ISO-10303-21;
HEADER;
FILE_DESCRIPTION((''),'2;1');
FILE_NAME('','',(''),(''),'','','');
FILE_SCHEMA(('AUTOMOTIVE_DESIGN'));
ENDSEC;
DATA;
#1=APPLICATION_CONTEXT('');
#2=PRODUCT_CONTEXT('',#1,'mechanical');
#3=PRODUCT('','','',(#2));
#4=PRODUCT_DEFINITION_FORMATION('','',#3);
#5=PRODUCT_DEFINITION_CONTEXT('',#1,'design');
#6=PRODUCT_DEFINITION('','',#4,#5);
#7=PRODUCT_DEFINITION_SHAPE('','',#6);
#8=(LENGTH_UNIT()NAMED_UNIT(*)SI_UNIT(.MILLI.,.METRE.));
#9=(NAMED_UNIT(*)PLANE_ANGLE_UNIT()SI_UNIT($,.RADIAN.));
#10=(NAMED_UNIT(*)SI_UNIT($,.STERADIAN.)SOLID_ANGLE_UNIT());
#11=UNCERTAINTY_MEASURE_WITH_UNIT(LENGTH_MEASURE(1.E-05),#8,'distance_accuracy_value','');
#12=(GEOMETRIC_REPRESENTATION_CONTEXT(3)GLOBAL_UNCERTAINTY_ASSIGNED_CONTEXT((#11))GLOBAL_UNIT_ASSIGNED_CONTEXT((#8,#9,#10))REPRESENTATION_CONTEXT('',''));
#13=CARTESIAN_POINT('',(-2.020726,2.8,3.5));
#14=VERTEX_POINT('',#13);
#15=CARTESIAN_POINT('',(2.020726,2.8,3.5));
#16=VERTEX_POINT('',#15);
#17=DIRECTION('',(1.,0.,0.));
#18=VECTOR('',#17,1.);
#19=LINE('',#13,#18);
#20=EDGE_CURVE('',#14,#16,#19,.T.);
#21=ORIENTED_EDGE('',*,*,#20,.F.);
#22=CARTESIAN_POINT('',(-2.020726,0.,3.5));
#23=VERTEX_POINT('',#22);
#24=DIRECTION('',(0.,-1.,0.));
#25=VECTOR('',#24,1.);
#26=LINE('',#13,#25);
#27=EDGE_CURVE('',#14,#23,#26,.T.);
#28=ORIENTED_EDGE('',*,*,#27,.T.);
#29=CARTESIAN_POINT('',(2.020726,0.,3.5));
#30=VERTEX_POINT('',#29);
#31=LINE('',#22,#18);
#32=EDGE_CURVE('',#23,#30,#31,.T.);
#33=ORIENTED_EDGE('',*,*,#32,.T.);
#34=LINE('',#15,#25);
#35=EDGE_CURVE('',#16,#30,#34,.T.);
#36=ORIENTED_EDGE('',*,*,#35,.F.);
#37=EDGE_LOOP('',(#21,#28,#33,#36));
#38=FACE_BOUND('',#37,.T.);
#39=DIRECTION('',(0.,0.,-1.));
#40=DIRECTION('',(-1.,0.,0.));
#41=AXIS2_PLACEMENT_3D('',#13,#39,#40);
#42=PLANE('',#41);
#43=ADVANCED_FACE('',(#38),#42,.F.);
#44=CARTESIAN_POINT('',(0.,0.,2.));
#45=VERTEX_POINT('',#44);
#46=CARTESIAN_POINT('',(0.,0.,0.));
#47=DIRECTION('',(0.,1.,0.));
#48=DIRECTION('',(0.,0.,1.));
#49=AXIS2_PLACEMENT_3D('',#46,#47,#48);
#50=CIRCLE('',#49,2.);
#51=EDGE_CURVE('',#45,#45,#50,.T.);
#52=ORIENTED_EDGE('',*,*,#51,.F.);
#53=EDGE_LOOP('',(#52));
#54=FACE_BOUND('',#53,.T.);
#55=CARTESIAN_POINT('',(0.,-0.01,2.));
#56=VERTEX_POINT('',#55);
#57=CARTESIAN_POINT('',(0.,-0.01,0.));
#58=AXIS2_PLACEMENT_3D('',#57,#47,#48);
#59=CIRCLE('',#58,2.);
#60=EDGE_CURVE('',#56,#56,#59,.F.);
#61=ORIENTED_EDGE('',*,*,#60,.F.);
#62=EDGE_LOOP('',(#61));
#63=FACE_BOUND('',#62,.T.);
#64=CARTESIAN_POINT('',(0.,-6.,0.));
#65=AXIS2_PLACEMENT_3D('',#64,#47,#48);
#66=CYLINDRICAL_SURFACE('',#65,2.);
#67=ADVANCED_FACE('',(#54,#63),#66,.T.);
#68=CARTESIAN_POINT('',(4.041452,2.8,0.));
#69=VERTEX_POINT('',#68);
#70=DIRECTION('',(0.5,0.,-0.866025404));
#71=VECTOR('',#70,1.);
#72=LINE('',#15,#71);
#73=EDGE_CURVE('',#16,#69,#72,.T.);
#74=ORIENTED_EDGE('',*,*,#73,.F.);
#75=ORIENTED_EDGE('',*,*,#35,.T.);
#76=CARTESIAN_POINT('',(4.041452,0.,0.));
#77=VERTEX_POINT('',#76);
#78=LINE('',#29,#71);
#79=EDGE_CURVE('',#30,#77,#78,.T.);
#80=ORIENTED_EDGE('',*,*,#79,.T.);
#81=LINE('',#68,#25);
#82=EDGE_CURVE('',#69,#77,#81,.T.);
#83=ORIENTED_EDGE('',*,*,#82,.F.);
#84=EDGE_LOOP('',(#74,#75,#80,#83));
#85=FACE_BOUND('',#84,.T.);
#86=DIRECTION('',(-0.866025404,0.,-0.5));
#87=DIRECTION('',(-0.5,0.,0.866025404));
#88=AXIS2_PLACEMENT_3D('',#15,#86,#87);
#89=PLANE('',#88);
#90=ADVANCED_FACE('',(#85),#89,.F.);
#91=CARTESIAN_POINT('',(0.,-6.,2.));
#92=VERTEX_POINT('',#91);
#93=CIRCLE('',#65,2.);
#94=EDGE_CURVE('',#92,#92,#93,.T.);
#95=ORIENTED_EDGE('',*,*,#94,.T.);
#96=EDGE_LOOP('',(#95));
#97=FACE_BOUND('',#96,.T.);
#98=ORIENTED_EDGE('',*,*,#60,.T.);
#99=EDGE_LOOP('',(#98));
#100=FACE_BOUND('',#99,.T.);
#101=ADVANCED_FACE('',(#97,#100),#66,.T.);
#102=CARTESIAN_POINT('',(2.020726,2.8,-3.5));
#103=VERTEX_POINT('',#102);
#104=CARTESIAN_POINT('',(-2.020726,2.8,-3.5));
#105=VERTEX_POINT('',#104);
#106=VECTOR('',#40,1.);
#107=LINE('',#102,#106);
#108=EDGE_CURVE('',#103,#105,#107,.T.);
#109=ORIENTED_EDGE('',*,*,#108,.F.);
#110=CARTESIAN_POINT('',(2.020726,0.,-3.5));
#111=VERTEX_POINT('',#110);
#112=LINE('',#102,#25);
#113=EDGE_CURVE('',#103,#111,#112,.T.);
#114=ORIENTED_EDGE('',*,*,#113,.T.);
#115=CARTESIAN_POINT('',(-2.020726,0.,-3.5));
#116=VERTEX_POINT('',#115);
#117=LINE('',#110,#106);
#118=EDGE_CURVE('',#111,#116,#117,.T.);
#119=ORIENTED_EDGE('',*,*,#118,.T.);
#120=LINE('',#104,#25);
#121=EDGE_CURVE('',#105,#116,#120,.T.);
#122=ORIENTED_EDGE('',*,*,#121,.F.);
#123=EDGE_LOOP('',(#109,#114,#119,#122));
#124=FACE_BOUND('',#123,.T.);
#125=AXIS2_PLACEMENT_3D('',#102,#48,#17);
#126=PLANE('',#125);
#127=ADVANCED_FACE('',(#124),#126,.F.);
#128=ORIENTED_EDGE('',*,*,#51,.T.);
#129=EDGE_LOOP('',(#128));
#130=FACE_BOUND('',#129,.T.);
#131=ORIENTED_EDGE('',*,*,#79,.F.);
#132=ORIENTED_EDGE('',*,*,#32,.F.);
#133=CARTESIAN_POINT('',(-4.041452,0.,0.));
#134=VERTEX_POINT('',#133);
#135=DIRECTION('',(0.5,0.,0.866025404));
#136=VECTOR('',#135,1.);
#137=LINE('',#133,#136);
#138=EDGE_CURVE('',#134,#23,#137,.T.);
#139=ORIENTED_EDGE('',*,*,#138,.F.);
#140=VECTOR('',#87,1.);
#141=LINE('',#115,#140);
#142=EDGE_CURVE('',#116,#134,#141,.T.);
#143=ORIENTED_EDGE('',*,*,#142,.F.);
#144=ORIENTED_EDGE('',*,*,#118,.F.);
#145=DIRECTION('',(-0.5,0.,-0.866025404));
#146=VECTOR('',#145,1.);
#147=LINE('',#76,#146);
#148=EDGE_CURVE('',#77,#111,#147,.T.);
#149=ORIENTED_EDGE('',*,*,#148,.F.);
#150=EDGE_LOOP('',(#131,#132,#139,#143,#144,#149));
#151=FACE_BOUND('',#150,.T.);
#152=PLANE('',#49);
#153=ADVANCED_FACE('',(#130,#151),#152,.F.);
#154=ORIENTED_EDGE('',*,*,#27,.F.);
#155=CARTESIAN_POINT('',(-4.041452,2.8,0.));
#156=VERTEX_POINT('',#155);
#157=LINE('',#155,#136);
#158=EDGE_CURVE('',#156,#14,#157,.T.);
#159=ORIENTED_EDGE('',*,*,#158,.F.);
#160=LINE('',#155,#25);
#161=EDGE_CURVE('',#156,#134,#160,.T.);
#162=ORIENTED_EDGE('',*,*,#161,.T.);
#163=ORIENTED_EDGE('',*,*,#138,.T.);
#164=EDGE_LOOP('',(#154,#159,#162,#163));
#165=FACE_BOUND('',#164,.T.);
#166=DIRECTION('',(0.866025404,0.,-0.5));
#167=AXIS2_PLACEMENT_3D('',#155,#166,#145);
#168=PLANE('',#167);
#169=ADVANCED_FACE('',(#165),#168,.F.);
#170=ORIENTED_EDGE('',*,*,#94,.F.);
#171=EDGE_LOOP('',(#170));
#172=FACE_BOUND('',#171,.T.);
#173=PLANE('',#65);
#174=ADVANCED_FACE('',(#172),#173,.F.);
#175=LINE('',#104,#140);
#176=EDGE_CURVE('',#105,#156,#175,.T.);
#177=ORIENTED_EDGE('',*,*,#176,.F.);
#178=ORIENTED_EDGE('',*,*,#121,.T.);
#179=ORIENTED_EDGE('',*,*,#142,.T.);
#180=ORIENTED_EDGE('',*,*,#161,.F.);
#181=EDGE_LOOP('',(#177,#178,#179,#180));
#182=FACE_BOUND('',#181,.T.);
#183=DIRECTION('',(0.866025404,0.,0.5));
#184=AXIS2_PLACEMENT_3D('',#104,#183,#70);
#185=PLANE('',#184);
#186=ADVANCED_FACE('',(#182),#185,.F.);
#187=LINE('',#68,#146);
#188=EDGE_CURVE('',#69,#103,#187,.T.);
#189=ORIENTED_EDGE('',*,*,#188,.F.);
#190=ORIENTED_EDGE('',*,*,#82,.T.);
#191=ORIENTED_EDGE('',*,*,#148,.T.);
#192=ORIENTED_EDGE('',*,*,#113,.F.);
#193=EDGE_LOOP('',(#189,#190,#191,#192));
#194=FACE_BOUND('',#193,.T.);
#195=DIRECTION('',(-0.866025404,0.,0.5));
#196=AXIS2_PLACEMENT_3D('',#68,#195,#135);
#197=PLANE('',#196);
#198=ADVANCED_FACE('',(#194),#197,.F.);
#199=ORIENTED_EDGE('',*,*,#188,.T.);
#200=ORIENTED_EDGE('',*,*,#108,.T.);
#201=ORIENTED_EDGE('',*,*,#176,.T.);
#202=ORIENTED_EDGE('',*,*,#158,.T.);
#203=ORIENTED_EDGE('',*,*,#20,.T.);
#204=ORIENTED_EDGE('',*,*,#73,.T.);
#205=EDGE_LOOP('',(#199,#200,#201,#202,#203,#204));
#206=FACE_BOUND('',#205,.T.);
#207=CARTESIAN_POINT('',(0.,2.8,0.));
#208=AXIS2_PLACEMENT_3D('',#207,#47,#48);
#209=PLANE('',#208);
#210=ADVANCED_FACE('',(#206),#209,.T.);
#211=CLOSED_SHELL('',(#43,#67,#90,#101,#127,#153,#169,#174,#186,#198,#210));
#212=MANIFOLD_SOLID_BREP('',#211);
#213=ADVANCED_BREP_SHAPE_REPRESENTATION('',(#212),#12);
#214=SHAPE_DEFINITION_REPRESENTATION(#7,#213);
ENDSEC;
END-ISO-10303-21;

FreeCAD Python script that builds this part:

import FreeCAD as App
import Part
import Sketcher
from FreeCAD import Vector
Q = App.Units.Quantity

doc = App.newDocument("Part")
body = doc.addObject("PartDesign::Body", "Body")

# Sketch on XZ plane
sketch1 = body.newObject("Sketcher::SketchObject", "Sketch")
sketch1.AttachmentSupport = (doc.getObject("XZ_Plane"), [""])
sketch1.MapMode = "FlatFace"
sketch1.addGeometry(Part.Circle(Vector(0, 0, 0), Vector(0, 0, 1), 2), False)
sketch1.addConstraint([
    Sketcher.Constraint("Coincident", 0, 3, -1, 1),
    Sketcher.Constraint("Diameter", 0, Q("4 mm")),
])
pad1 = body.newObject("PartDesign::Pad", "Pad")
pad1.Profile = sketch1
pad1.Length = 6

# Sketch on XZ plane
sketch2 = body.newObject("Sketcher::SketchObject", "Sketch001")
sketch2.AttachmentSupport = (doc.getObject("XZ_Plane"), [""])
sketch2.MapMode = "FlatFace"
sketch2.addGeometry([
    Part.LineSegment(Vector(-4, 0, 0), Vector(-2, 3.5, 0)),  # 0
    Part.LineSegment(Vector(-2, 3.5, 0), Vector(2, 3.5, 0)),  # 1
    Part.LineSegment(Vector(2, 3.5, 0), Vector(4, 0, 0)),  # 2
    Part.LineSegment(Vector(4, 0, 0), Vector(2, -3.5, 0)),  # 3
    Part.LineSegment(Vector(2, -3.5, 0), Vector(-2, -3.5, 0)),  # 4
    Part.LineSegment(Vector(-2, -3.5, 0), Vector(-4, 0, 0)),  # 5
], False)
sketch2.addConstraint([
    Sketcher.Constraint("Coincident", 0, 2, 1, 1),
    Sketcher.Constraint("Coincident", 1, 2, 2, 1),
    Sketcher.Constraint("Coincident", 2, 2, 3, 1),
    Sketcher.Constraint("Coincident", 3, 2, 4, 1),
    Sketcher.Constraint("Coincident", 4, 2, 5, 1),
    Sketcher.Constraint("Coincident", 5, 2, 0, 1),
    Sketcher.Constraint("Horizontal", 1),
    Sketcher.Constraint("Horizontal", 4),
    Sketcher.Constraint("Symmetric", 0, 2, 3, 2, -1, 1),
    Sketcher.Constraint("Symmetric", 2, 2, 5, 2, -1, 1),
    Sketcher.Constraint("PointOnObject", 2, 2, -1),
    Sketcher.Constraint("Parallel", 2, 5),
    Sketcher.Constraint("Vertical", 1, 2, 3, 2),
    Sketcher.Constraint("Angle", 0, Q("60 deg")),
    Sketcher.Constraint("DistanceY", 3, 2, 1, 2, Q("7 mm")),
    Sketcher.Constraint("DistanceX", 1, 1, 1, 2, Q("4.041452 mm")),
])
pad2 = body.newObject("PartDesign::Pad", "Pad001")
pad2.Profile = sketch2
pad2.Length = 2.8
pad2.Reversed = True

doc.recompute()
